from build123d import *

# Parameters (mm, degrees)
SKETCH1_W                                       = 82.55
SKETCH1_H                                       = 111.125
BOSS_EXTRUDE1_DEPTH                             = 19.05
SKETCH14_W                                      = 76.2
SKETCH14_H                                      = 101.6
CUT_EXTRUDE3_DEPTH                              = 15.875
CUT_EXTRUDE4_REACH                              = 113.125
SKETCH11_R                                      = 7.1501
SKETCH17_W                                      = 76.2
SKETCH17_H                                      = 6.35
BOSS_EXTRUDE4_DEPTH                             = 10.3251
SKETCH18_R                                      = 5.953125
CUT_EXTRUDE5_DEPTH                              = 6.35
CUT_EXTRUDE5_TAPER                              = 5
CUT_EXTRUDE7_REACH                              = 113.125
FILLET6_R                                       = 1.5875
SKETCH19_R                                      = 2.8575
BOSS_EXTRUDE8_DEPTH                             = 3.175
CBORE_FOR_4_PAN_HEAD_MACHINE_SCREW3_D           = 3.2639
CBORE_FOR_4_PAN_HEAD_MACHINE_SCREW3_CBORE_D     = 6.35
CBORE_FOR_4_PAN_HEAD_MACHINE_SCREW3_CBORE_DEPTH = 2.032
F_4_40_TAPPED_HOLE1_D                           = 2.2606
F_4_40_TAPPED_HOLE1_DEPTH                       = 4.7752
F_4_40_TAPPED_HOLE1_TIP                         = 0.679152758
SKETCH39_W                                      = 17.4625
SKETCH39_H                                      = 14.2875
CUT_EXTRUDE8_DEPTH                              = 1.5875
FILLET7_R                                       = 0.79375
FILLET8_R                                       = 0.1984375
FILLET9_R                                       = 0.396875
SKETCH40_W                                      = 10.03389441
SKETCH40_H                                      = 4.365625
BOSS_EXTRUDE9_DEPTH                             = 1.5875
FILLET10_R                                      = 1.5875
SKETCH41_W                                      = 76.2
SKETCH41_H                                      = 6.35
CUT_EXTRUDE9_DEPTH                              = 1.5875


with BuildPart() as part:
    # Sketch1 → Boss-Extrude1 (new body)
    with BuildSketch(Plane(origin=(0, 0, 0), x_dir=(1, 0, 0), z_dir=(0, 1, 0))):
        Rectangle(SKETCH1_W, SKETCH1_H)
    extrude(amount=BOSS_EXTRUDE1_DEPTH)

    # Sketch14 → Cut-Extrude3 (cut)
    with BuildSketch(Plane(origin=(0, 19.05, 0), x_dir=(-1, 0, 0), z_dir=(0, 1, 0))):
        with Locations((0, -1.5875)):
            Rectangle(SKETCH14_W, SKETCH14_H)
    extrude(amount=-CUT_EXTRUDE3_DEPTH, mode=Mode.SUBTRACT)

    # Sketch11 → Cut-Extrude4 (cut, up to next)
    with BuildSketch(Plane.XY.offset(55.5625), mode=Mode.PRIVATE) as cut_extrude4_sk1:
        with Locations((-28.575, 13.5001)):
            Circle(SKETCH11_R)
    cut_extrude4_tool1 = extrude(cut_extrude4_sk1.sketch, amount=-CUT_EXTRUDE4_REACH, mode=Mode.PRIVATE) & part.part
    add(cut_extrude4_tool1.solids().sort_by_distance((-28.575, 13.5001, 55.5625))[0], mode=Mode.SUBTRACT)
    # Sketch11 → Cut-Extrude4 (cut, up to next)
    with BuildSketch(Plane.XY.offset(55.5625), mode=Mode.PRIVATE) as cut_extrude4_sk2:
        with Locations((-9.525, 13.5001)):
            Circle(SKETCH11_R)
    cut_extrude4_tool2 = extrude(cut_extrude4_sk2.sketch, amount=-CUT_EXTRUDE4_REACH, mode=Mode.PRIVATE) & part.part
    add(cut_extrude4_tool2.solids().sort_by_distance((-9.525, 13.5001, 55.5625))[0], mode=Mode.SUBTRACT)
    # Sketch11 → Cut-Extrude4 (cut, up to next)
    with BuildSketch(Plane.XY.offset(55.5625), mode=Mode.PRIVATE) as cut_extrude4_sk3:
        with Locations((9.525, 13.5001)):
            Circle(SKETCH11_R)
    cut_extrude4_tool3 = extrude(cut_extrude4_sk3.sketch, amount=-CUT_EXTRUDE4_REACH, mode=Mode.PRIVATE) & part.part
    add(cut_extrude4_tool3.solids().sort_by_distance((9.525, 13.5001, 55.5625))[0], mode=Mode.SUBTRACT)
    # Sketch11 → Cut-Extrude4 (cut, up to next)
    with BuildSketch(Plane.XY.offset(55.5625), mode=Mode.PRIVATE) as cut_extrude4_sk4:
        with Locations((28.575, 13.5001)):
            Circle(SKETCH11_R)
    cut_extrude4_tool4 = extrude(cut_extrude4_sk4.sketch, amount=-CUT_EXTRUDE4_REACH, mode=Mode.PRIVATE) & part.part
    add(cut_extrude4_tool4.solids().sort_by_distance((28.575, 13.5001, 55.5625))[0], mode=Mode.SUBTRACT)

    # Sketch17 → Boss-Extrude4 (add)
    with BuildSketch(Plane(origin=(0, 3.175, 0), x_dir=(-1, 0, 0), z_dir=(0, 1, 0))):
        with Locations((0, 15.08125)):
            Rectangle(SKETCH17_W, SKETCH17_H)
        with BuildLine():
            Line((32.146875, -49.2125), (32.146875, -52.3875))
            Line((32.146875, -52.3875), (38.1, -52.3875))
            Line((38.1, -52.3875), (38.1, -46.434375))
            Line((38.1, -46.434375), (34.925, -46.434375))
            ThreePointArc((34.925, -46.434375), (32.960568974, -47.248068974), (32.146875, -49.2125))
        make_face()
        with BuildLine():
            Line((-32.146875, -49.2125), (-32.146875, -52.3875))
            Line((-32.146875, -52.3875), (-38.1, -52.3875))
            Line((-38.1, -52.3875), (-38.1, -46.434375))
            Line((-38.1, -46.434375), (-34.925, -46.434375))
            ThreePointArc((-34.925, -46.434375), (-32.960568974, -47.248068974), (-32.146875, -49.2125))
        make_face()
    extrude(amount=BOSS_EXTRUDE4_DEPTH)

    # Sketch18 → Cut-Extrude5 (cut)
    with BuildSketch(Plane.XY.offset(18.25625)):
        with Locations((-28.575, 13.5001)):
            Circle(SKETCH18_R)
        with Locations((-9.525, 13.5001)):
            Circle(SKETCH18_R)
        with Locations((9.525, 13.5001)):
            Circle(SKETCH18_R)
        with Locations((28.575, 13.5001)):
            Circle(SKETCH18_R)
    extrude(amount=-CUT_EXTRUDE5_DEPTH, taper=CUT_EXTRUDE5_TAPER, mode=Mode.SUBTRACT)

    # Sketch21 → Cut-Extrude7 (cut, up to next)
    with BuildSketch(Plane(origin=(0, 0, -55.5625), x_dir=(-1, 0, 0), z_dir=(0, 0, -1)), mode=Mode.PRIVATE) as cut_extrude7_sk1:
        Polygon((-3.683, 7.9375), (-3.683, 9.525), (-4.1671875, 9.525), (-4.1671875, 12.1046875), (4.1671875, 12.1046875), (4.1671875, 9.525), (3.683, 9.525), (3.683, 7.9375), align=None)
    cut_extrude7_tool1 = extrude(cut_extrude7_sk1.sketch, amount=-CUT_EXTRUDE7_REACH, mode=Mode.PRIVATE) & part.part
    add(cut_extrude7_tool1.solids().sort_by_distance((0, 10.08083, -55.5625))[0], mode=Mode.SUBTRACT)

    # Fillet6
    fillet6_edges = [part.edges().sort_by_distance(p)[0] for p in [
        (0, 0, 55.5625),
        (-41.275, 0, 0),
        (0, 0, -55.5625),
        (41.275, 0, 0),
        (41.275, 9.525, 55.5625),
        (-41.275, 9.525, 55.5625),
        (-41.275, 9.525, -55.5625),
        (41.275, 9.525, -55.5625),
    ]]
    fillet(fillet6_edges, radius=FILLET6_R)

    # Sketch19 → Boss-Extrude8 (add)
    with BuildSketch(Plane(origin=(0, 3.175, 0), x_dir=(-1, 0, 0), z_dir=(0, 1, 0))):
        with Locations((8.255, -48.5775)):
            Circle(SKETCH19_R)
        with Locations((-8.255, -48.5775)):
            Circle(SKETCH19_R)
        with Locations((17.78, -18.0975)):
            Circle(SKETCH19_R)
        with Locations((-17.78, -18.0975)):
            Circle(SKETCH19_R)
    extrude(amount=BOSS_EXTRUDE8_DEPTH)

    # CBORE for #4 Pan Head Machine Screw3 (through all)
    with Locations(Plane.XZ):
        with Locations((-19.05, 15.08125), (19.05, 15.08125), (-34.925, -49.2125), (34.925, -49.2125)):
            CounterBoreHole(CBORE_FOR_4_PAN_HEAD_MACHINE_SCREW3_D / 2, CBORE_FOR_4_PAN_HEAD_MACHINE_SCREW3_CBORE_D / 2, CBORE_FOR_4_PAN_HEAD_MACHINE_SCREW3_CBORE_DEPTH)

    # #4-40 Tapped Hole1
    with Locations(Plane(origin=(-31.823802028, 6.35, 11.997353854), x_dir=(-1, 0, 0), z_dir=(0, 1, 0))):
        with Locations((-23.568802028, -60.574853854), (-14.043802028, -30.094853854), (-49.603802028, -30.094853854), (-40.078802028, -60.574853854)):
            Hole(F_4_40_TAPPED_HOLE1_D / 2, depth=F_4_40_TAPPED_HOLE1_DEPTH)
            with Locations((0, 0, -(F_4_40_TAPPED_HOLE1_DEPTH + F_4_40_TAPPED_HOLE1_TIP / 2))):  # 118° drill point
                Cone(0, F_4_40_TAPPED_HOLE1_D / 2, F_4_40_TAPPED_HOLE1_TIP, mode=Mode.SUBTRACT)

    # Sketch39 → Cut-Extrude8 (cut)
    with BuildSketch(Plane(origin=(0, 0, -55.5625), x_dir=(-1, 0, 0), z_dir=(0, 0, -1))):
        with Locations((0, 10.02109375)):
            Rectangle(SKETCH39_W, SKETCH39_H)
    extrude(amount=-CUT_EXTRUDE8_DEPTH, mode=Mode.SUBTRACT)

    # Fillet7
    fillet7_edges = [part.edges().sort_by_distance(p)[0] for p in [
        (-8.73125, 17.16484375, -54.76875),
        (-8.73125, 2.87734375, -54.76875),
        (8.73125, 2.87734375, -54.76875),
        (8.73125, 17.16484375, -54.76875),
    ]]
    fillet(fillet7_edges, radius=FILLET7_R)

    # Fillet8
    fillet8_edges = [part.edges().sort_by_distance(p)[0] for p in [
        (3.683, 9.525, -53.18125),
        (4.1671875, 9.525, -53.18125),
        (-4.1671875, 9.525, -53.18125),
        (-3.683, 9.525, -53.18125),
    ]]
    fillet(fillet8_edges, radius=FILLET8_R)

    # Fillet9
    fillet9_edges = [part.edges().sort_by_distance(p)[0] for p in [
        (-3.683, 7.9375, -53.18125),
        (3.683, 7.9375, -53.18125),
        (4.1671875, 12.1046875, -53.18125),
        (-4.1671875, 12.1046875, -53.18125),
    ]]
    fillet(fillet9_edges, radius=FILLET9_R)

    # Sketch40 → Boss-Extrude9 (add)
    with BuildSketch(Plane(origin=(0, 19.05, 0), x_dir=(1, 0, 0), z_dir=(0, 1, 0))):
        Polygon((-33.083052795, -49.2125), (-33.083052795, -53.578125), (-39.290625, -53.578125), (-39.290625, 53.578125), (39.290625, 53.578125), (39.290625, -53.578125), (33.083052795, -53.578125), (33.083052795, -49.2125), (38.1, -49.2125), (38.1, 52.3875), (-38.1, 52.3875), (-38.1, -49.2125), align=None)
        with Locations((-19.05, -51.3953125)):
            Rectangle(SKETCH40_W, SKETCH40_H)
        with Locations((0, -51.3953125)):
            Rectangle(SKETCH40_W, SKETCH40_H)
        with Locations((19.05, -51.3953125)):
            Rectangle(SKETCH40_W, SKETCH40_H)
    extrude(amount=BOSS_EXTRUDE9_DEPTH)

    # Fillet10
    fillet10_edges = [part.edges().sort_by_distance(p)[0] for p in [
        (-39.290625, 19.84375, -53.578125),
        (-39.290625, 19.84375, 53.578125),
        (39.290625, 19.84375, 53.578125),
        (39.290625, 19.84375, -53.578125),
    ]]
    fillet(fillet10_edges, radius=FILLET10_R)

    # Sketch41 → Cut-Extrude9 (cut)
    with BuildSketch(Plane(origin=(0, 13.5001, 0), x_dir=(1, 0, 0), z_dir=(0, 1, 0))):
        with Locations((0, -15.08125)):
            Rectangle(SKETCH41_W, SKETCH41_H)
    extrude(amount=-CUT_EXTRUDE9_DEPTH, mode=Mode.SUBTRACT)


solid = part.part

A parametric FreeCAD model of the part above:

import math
import FreeCAD as App
import Part
import Sketcher
from FreeCAD import Vector
Q = App.Units.Quantity


def edges_at(feature, points):
    """Names of the edges that pass closest to the given points."""
    edges = feature.Shape.Edges
    near = lambda p: min(range(len(edges)), key=lambda i: edges[i].distToShape(Part.Vertex(*p))[0])
    return sorted({f"Edge{near(p) + 1}" for p in points})


def add_polygon(sketch, points):
    """Adds a closed chain of lines whose ends are joined by coincident constraints."""
    first, n = sketch.GeometryCount, len(points)
    for a, b in zip(points, points[1:] + points[:1]):
        sketch.addGeometry(Part.LineSegment(App.Vector(*a, 0), App.Vector(*b, 0)), False)
    for i in range(n):
        sketch.addConstraint(Sketcher.Constraint("Coincident", first + i, 2, first + (i + 1) % n, 1))

doc = App.newDocument("Part")
params = doc.addObject("Spreadsheet::Sheet", "Params")
for row, (alias, value) in enumerate([
    ("sketch1_width", "3.25 in"),
    ("sketch1_height", "4.375 in"),
    ("pad1_length", "0.75 in"),
    ("sketch2_width", "3 in"),
    ("sketch2_height", "4 in"),
    ("pocket1_length", "0.625 in"),
    ("sketch3_diameter", "0.563 in"),
    ("sketch4_diameter", "0.563 in"),
    ("sketch5_diameter", "0.563 in"),
    ("sketch6_diameter", "0.563 in"),
    ("sketch7_width", "3 in"),
    ("sketch7_radius", "0.109375 in"),
    ("sketch7_height", "0.25 in"),
    ("sketch7_width2", "0.234375 in"),
    ("pad2_length", "0.4065 in"),
    ("sketch8_diameter", "0.46875 in"),
    ("pocket6_length", "0.25 in"),
    ("pocket6_taper", "-5 deg"),
    ("sketch9_width", "0.29 in"),
    ("sketch9_width2", "0.328125 in"),
    ("sketch9_height", "0.0625 in"),
    ("fillet_radius", "0.0625 in"),
    ("sketch10_diameter", "0.225 in"),
    ("pad3_length", "0.125 in"),
    ("hole_diameter", "0.1285 in"),
    ("hole_cbore_diameter", "0.25 in"),
    ("hole_cbore_depth", "0.08 in"),
    ("sketch12_diameter", "0.089 in"),
    ("hole2_diameter", "0.089 in"),
    ("hole2_depth", "0.188 in"),
    ("sketch13_width", "0.6875 in"),
    ("sketch13_height", "0.5625 in"),
    ("pocket8_length", "0.0625 in"),
    ("fillet2_radius", "0.03125 in"),
    ("fillet3_radius", "0.198437 mm"),
    ("fillet4_radius", "0.015625 in"),
    ("sketch14_width", "3 in"),
    ("sketch14_height", "4 in"),
    ("sketch14_width2", "3.09375 in"),
    ("sketch14_height2", "0.171875 in"),
    ("sketch14_height3", "4.21875 in"),
    ("pad4_length", "0.0625 in"),
    ("fillet5_radius", "0.0625 in"),
    ("sketch15_width", "3 in"),
    ("sketch15_height", "0.25 in"),
    ("pocket9_length", "0.0625 in"),
], start=1):
    params.set(f"A{row}", alias)
    params.set(f"B{row}", "=" + value)
    params.setAlias(f"B{row}", alias)

body = doc.addObject("PartDesign::Body", "Body")

sketch1 = body.newObject("Sketcher::SketchObject", "Sketch")
sketch1.AttachmentSupport = (doc.getObject("XZ_Plane"), [""])
sketch1.MapMode = "FlatFace"
add_polygon(sketch1, [(-41.275, -55.5625), (-41.275, 55.5625), (41.275, 55.5625), (41.275, -55.5625)])
sketch1.addConstraint(Sketcher.Constraint("Vertical", 0))
sketch1.addConstraint(Sketcher.Constraint("Horizontal", 1))
sketch1.addConstraint(Sketcher.Constraint("Vertical", 2))
sketch1.addConstraint(Sketcher.Constraint("Horizontal", 3))
sketch1.addConstraint(Sketcher.Constraint("Symmetric", 0, 2, 2, 2, -1, 1))
sketch1.addConstraint(Sketcher.Constraint("DistanceX", 1, 1, 1, 2, Q("3.25 in")))
sketch1.addConstraint(Sketcher.Constraint("DistanceY", 0, 1, 0, 2, Q("4.375 in")))
sketch1.setExpression("Constraints[9]", "Params.sketch1_width")
sketch1.setExpression("Constraints[10]", "Params.sketch1_height")
pad1 = body.newObject("PartDesign::Pad", "Pad")
pad1.Profile = sketch1
pad1.setExpression("Length", "Params.pad1_length")
pad1.Reversed = True

sketch2 = body.newObject("Sketcher::SketchObject", "Sketch001")
sketch2.AttachmentSupport = (doc.getObject("XZ_Plane"), [""])
sketch2.MapMode = "FlatFace"
sketch2.AttachmentOffset = App.Placement(Vector(0, 0, -0.75 * 25.4), App.Rotation())
add_polygon(sketch2, [(38.1, 49.2125), (38.1, -52.3875), (-38.1, -52.3875), (-38.1, 49.2125)])
sketch2.addConstraint(Sketcher.Constraint("Vertical", 0))
sketch2.addConstraint(Sketcher.Constraint("Horizontal", 1))
sketch2.addConstraint(Sketcher.Constraint("Vertical", 2))
sketch2.addConstraint(Sketcher.Constraint("Horizontal", 3))
sketch2.addConstraint(Sketcher.Constraint("DistanceX", 1, 2, 1, 1, Q("3 in")))
sketch2.addConstraint(Sketcher.Constraint("DistanceY", 0, 2, 0, 1, Q("4 in")))
sketch2.addConstraint(Sketcher.Constraint("DistanceX", -1, 1, 0, 2, Q("1.5 in")))
sketch2.addConstraint(Sketcher.Constraint("DistanceY", 0, 2, -1, 1, Q("2.0625 in")))
sketch2.setExpression("Constraints[8]", "Params.sketch2_width")
sketch2.setExpression("Constraints[9]", "Params.sketch2_height")
pocket1 = body.newObject("PartDesign::Pocket", "Pocket")
pocket1.Profile = sketch2
pocket1.setExpression("Length", "Params.pocket1_length")
pocket1.Reversed = True

sketch3 = body.newObject("Sketcher::SketchObject", "Sketch002")
sketch3.AttachmentSupport = (doc.getObject("XY_Plane"), [""])
sketch3.MapMode = "FlatFace"
sketch3.AttachmentOffset = App.Placement(Vector(0, 0, 2.1875 * 25.4), App.Rotation())
sketch3.addGeometry(Part.Circle(Vector(-28.575, 13.5001, 0), Vector(0, 0, 1), 7.1501), False)
sketch3.addConstraint(Sketcher.Constraint("Diameter", 0, Q("0.563 in")))
sketch3.addConstraint(Sketcher.Constraint("DistanceX", 0, 3, -1, 1, Q("1.125 in")))
sketch3.addConstraint(Sketcher.Constraint("DistanceY", -1, 1, 0, 3, Q("0.5315 in")))
sketch3.setExpression("Constraints[0]", "Params.sketch3_diameter")
pocket2 = body.newObject("PartDesign::Pocket", "Pocket001")
pocket2.Profile = sketch3
pocket2.Type = "UpToFirst"

sketch4 = body.newObject("Sketcher::SketchObject", "Sketch003")
sketch4.AttachmentSupport = (doc.getObject("XY_Plane"), [""])
sketch4.MapMode = "FlatFace"
sketch4.AttachmentOffset = App.Placement(Vector(0, 0, 2.1875 * 25.4), App.Rotation())
sketch4.addGeometry(Part.Circle(Vector(-9.525, 13.5001, 0), Vector(0, 0, 1), 7.1501), False)
sketch4.addConstraint(Sketcher.Constraint("Diameter", 0, Q("0.563 in")))
sketch4.addConstraint(Sketcher.Constraint("DistanceX", 0, 3, -1, 1, Q("0.375 in")))
sketch4.addConstraint(Sketcher.Constraint("DistanceY", -1, 1, 0, 3, Q("0.5315 in")))
sketch4.setExpression("Constraints[0]", "Params.sketch4_diameter")
pocket3 = body.newObject("PartDesign::Pocket", "Pocket002")
pocket3.Profile = sketch4
pocket3.Type = "UpToFirst"

sketch5 = body.newObject("Sketcher::SketchObject", "Sketch004")
sketch5.AttachmentSupport = (doc.getObject("XY_Plane"), [""])
sketch5.MapMode = "FlatFace"
sketch5.AttachmentOffset = App.Placement(Vector(0, 0, 2.1875 * 25.4), App.Rotation())
sketch5.addGeometry(Part.Circle(Vector(9.525, 13.5001, 0), Vector(0, 0, 1), 7.1501), False)
sketch5.addConstraint(Sketcher.Constraint("Diameter", 0, Q("0.563 in")))
sketch5.addConstraint(Sketcher.Constraint("DistanceX", -1, 1, 0, 3, Q("0.375 in")))
sketch5.addConstraint(Sketcher.Constraint("DistanceY", -1, 1, 0, 3, Q("0.5315 in")))
sketch5.setExpression("Constraints[0]", "Params.sketch5_diameter")
pocket4 = body.newObject("PartDesign::Pocket", "Pocket003")
pocket4.Profile = sketch5
pocket4.Type = "UpToFirst"

sketch6 = body.newObject("Sketcher::SketchObject", "Sketch005")
sketch6.AttachmentSupport = (doc.getObject("XY_Plane"), [""])
sketch6.MapMode = "FlatFace"
sketch6.AttachmentOffset = App.Placement(Vector(0, 0, 2.1875 * 25.4), App.Rotation())
sketch6.addGeometry(Part.Circle(Vector(28.575, 13.5001, 0), Vector(0, 0, 1), 7.1501), False)
sketch6.addConstraint(Sketcher.Constraint("Diameter", 0, Q("0.563 in")))
sketch6.addConstraint(Sketcher.Constraint("DistanceX", -1, 1, 0, 3, Q("1.125 in")))
sketch6.addConstraint(Sketcher.Constraint("DistanceY", -1, 1, 0, 3, Q("0.5315 in")))
sketch6.setExpression("Constraints[0]", "Params.sketch6_diameter")
pocket5 = body.newObject("PartDesign::Pocket", "Pocket004")
pocket5.Profile = sketch6
pocket5.Type = "UpToFirst"

sketch7 = body.newObject("Sketcher::SketchObject", "Sketch006")
sketch7.AttachmentSupport = (doc.getObject("XZ_Plane"), [""])
sketch7.MapMode = "FlatFace"
sketch7.AttachmentOffset = App.Placement(Vector(0, 0, -0.125 * 25.4), App.Rotation())
add_polygon(sketch7, [(38.1, 18.25625), (38.1, 11.90625), (-38.1, 11.90625), (-38.1, 18.25625)])
sketch7.addGeometry(Part.LineSegment(Vector(-32.146875, -49.2125, 0), Vector(-32.146875, -52.3875, 0)), False)
sketch7.addGeometry(Part.LineSegment(Vector(-32.146875, -52.3875, 0), Vector(-38.1, -52.3875, 0)), False)
sketch7.addGeometry(Part.LineSegment(Vector(-38.1, -52.3875, 0), Vector(-38.1, -46.434375, 0)), False)
sketch7.addGeometry(Part.LineSegment(Vector(-38.1, -46.434375, 0), Vector(-34.925, -46.434375, 0)), False)
sketch7.addGeometry(Part.ArcOfCircle(Part.Circle(Vector(-34.925, -49.2125, 0), Vector(0, 0, 1), 2.778125), math.radians(0), math.radians(90)), False)
sketch7.addGeometry(Part.LineSegment(Vector(32.146875, -52.3875, 0), Vector(32.146875, -49.2125, 0)), False)
sketch7.addGeometry(Part.ArcOfCircle(Part.Circle(Vector(34.925, -49.2125, 0), Vector(0, 0, 1), 2.778125), math.radians(90), math.radians(180)), False)
sketch7.addGeometry(Part.LineSegment(Vector(34.925, -46.434375, 0), Vector(38.1, -46.434375, 0)), False)
sketch7.addGeometry(Part.LineSegment(Vector(38.1, -46.434375, 0), Vector(38.1, -52.3875, 0)), False)
sketch7.addGeometry(Part.LineSegment(Vector(38.1, -52.3875, 0), Vector(32.146875, -52.3875, 0)), False)
sketch7.addConstraint(Sketcher.Constraint("Coincident", 4, 2, 5, 1))
sketch7.addConstraint(Sketcher.Constraint("Coincident", 5, 2, 6, 1))
sketch7.addConstraint(Sketcher.Constraint("Coincident", 6, 2, 7, 1))
sketch7.addConstraint(Sketcher.Constraint("Tangent", 7, 2, 8, 2))
sketch7.addConstraint(Sketcher.Constraint("Tangent", 8, 1, 4, 1))
sketch7.addConstraint(Sketcher.Constraint("Tangent", 9, 2, 10, 2))
sketch7.addConstraint(Sketcher.Constraint("Tangent", 10, 1, 11, 1))
sketch7.addConstraint(Sketcher.Constraint("Coincident", 11, 2, 12, 1))
sketch7.addConstraint(Sketcher.Constraint("Coincident", 12, 2, 13, 1))
sketch7.addConstraint(Sketcher.Constraint("Coincident", 13, 2, 9, 1))
sketch7.addConstraint(Sketcher.Constraint("Vertical", 0))
sketch7.addConstraint(Sketcher.Constraint("Horizontal", 1))
sketch7.addConstraint(Sketcher.Constraint("Vertical", 2))
sketch7.addConstraint(Sketcher.Constraint("Horizontal", 3))
sketch7.addConstraint(Sketcher.Constraint("Vertical", 4))
sketch7.addConstraint(Sketcher.Constraint("Horizontal", 5))
sketch7.addConstraint(Sketcher.Constraint("Vertical", 6))
sketch7.addConstraint(Sketcher.Constraint("Horizontal", 7))
sketch7.addConstraint(Sketcher.Constraint("Vertical", 9))
sketch7.addConstraint(Sketcher.Constraint("Horizontal", 11))
sketch7.addConstraint(Sketcher.Constraint("Vertical", 12))
sketch7.addConstraint(Sketcher.Constraint("Horizontal", 13))
sketch7.addConstraint(Sketcher.Constraint("Equal", 8, 10))
sketch7.addConstraint(Sketcher.Constraint("Symmetric", 8, 3, 10, 3, -2))
sketch7.addConstraint(Sketcher.Constraint("Symmetric", 5, 2, 12, 2, -2))
sketch7.addConstraint(Sketcher.Constraint("Vertical", 2, 2, 5, 2))
sketch7.addConstraint(Sketcher.Constraint("Vertical", 3, 2, 11, 2))
sketch7.addConstraint(Sketcher.Constraint("Equal", 11, 4))
sketch7.addConstraint(Sketcher.Constraint("DistanceX", 1, 2, 1, 1, Q("3 in")))
sketch7.addConstraint(Sketcher.Constraint("Radius", 8, Q("0.109375 in")))
sketch7.addConstraint(Sketcher.Constraint("DistanceY", 0, 2, 0, 1, Q("0.25 in")))
sketch7.addConstraint(Sketcher.Constraint("DistanceX", 5, 2, 5, 1, Q("0.234375 in")))
sketch7.addConstraint(Sketcher.Constraint("DistanceY", 8, 3, -1, 1, Q("1.9375 in")))
sketch7.addConstraint(Sketcher.Constraint("DistanceY", -1, 1, 0, 2, Q("0.46875 in")))
sketch7.setExpression("Constraints[32]", "Params.sketch7_width")
sketch7.setExpression("Constraints[33]", "Params.sketch7_radius")
sketch7.setExpression("Constraints[34]", "Params.sketch7_height")
sketch7.setExpression("Constraints[35]", "Params.sketch7_width2")
pad2 = body.newObject("PartDesign::Pad", "Pad001")
pad2.Profile = sketch7
pad2.setExpression("Length", "Params.pad2_length")
pad2.Reversed = True

sketch8 = body.newObject("Sketcher::SketchObject", "Sketch007")
sketch8.AttachmentSupport = (doc.getObject("XY_Plane"), [""])
sketch8.MapMode = "FlatFace"
sketch8.AttachmentOffset = App.Placement(Vector(0, 0, 0.71875 * 25.4), App.Rotation())
sketch8.addGeometry(Part.Circle(Vector(-28.575, 13.5001, 0), Vector(0, 0, 1), 5.953125), False)
sketch8.addGeometry(Part.Circle(Vector(-9.525, 13.5001, 0), Vector(0, 0, 1), 5.953125), False)
sketch8.addGeometry(Part.Circle(Vector(9.525, 13.5001, 0), Vector(0, 0, 1), 5.953125), False)
sketch8.addGeometry(Part.Circle(Vector(28.575, 13.5001, 0), Vector(0, 0, 1), 5.953125), False)
sketch8.addConstraint(Sketcher.Constraint("Equal", 0, 1))
sketch8.addConstraint(Sketcher.Constraint("Equal", 1, 2))
sketch8.addConstraint(Sketcher.Constraint("Equal", 2, 3))
sketch8.addConstraint(Sketcher.Constraint("Symmetric", 1, 3, 2, 3, -2))
sketch8.addConstraint(Sketcher.Constraint("Symmetric", 0, 3, 3, 3, -2))
sketch8.addConstraint(Sketcher.Constraint("Horizontal", 0, 3, 1, 3))
sketch8.addConstraint(Sketcher.Constraint("Diameter", 0, Q("0.46875 in")))
sketch8.addConstraint(Sketcher.Constraint("DistanceX", 0, 3, 2, 3, Q("1.5 in")))
sketch8.addConstraint(Sketcher.Constraint("DistanceX", 0, 3, 1, 3, Q("0.75 in")))
sketch8.addConstraint(Sketcher.Constraint("DistanceY", -1, 1, 0, 3, Q("0.5315 in")))
sketch8.setExpression("Constraints[6]", "Params.sketch8_diameter")
pocket6 = body.newObject("PartDesign::Pocket", "Pocket005")
pocket6.Profile = sketch8
pocket6.setExpression("Length", "Params.pocket6_length")
pocket6.setExpression("TaperAngle", "Params.pocket6_taper")

sketch9 = body.newObject("Sketcher::SketchObject", "Sketch008")
sketch9.AttachmentSupport = (doc.getObject("XY_Plane"), [""])
sketch9.MapMode = "FlatFace"
sketch9.AttachmentOffset = App.Placement(Vector(0, 0, -2.1875 * 25.4), App.Rotation())
add_polygon(sketch9, [(3.683, 9.525), (3.683, 7.9375), (-3.683, 7.9375), (-3.683, 9.525), (-4.167187, 9.525), (-4.167187, 12.104688), (4.167187, 12.104688), (4.167187, 9.525)])
sketch9.addConstraint(Sketcher.Constraint("Vertical", 0))
sketch9.addConstraint(Sketcher.Constraint("Horizontal", 1))
sketch9.addConstraint(Sketcher.Constraint("Vertical", 2))
sketch9.addConstraint(Sketcher.Constraint("Horizontal", 3))
sketch9.addConstraint(Sketcher.Constraint("Vertical", 4))
sketch9.addConstraint(Sketcher.Constraint("Horizontal", 5))
sketch9.addConstraint(Sketcher.Constraint("Vertical", 6))
sketch9.addConstraint(Sketcher.Constraint("Horizontal", 7))
sketch9.addConstraint(Sketcher.Constraint("Symmetric", 3, 2, 6, 2, -2))
sketch9.addConstraint(Sketcher.Constraint("Equal", 3, 7))
sketch9.addConstraint(Sketcher.Constraint("DistanceX", 1, 2, 1, 1, Q("0.29 in")))
sketch9.addConstraint(Sketcher.Constraint("DistanceX", 5, 1, 5, 2, Q("0.328125 in")))
sketch9.addConstraint(Sketcher.Constraint("DistanceY", 0, 2, 0, 1, Q("0.0625 in")))
sketch9.addConstraint(Sketcher.Constraint("DistanceY", -1, 1, 0, 2, Q("0.3125 in")))
sketch9.addConstraint(Sketcher.Constraint("DistanceY", 4, 1, 4, 2, Q("2.579688 mm")))
sketch9.setExpression("Constraints[18]", "Params.sketch9_width")
sketch9.setExpression("Constraints[19]", "Params.sketch9_width2")
sketch9.setExpression("Constraints[20]", "Params.sketch9_height")
pocket7 = body.newObject("PartDesign::Pocket", "Pocket006")
pocket7.Profile = sketch9
pocket7.Type = "UpToFirst"
pocket7.Reversed = True
doc.recompute()

fillet = body.newObject("PartDesign::Fillet", "Fillet")
fillet.Base = (pocket7, edges_at(pocket7, [
    (0, 0, 55.562),
    (-41.275, 0, 0),
    (0, 0, -55.562),
    (41.275, 0, 0),
    (41.275, 9.525, 55.562),
    (-41.275, 9.525, 55.562),
    (-41.275, 9.525, -55.562),
    (41.275, 9.525, -55.562),
]))
fillet.setExpression("Radius", "Params.fillet_radius")

sketch10 = body.newObject("Sketcher::SketchObject", "Sketch009")
sketch10.AttachmentSupport = (doc.getObject("XZ_Plane"), [""])
sketch10.MapMode = "FlatFace"
sketch10.AttachmentOffset = App.Placement(Vector(0, 0, -0.125 * 25.4), App.Rotation())
sketch10.addGeometry(Part.Circle(Vector(-8.255, -48.5775, 0), Vector(0, 0, 1), 2.8575), False)
sketch10.addGeometry(Part.Circle(Vector(8.255, -48.5775, 0), Vector(0, 0, 1), 2.8575), False)
sketch10.addGeometry(Part.Circle(Vector(-17.78, -18.0975, 0), Vector(0, 0, 1), 2.8575), False)
sketch10.addGeometry(Part.Circle(Vector(17.78, -18.0975, 0), Vector(0, 0, 1), 2.8575), False)
sketch10.addConstraint(Sketcher.Constraint("Equal", 0, 1))
sketch10.addConstraint(Sketcher.Constraint("Equal", 1, 2))
sketch10.addConstraint(Sketcher.Constraint("Equal", 2, 3))
sketch10.addConstraint(Sketcher.Constraint("Symmetric", 0, 3, 1, 3, -2))
sketch10.addConstraint(Sketcher.Constraint("Symmetric", 2, 3, 3, 3, -2))
sketch10.addConstraint(Sketcher.Constraint("Diameter", 0, Q("0.225 in")))
sketch10.addConstraint(Sketcher.Constraint("DistanceX", 2, 3, -1, 1, Q("0.7 in")))
sketch10.addConstraint(Sketcher.Constraint("DistanceY", 0, 3, 2, 3, Q("1.2 in")))
sketch10.addConstraint(Sketcher.Constraint("DistanceX", 0, 3, 1, 3, Q("0.65 in")))
sketch10.addConstraint(Sketcher.Constraint("DistanceY", 0, 3, -1, 1, Q("1.9125 in")))
sketch10.setExpression("Constraints[5]", "Params.sketch10_diameter")
pad3 = body.newObject("PartDesign::Pad", "Pad002")
pad3.Profile = sketch10
pad3.setExpression("Length", "Params.pad3_length")
pad3.Reversed = True

sketch11 = body.newObject("Sketcher::SketchObject", "Sketch010")
sketch11.AttachmentSupport = (doc.getObject("XZ_Plane"), [""])
sketch11.MapMode = "FlatFace"
sketch11.addGeometry(Part.Circle(Vector(-19.05, 15.08125, 0), Vector(0, 0, 1), 1.63195), False)
sketch11.addGeometry(Part.Circle(Vector(19.05, 15.08125, 0), Vector(0, 0, 1), 1.63195), False)
sketch11.addGeometry(Part.Circle(Vector(-34.925, -49.2125, 0), Vector(0, 0, 1), 1.63195), False)
sketch11.addGeometry(Part.Circle(Vector(34.925, -49.2125, 0), Vector(0, 0, 1), 1.63195), False)
sketch11.addConstraint(Sketcher.Constraint("Equal", 0, 1))
sketch11.addConstraint(Sketcher.Constraint("Equal", 1, 2))
sketch11.addConstraint(Sketcher.Constraint("Equal", 2, 3))
sketch11.addConstraint(Sketcher.Constraint("Symmetric", 0, 3, 1, 3, -2))
sketch11.addConstraint(Sketcher.Constraint("Symmetric", 2, 3, 3, 3, -2))
sketch11.addConstraint(Sketcher.Constraint("Diameter", 0, Q("0.1285 in")))
sketch11.addConstraint(Sketcher.Constraint("DistanceX", 0, 3, 1, 3, Q("1.5 in")))
sketch11.addConstraint(Sketcher.Constraint("DistanceX", 2, 3, 3, 3, Q("2.75 in")))
sketch11.addConstraint(Sketcher.Constraint("DistanceY", -1, 1, 0, 3, Q("0.59375 in")))
sketch11.addConstraint(Sketcher.Constraint("DistanceY", 2, 3, -1, 1, Q("1.9375 in")))
doc.recompute()
hole = body.newObject("PartDesign::Hole", "Hole")
hole.Profile = sketch11
hole.ThreadType = "None"
hole.setExpression("Diameter", "Params.hole_diameter")
hole.DepthType = "ThroughAll"
hole.HoleCutType = "Counterbore"
hole.setExpression("HoleCutDiameter", "Params.hole_cbore_diameter")
hole.setExpression("HoleCutDepth", "Params.hole_cbore_depth")

sketch12 = body.newObject("Sketcher::SketchObject", "Sketch011")
sketch12.AttachmentSupport = (doc.getObject("XZ_Plane"), [""])
sketch12.MapMode = "FlatFace"
sketch12.AttachmentOffset = App.Placement(Vector(0, 0, -0.25 * 25.4), App.Rotation())
sketch12.addGeometry(Part.Circle(Vector(-8.255, -48.5775, 0), Vector(0, 0, 1), 1.1303), False)
sketch12.addGeometry(Part.Circle(Vector(-17.78, -18.0975, 0), Vector(0, 0, 1), 1.1303), False)
sketch12.addGeometry(Part.Circle(Vector(17.78, -18.0975, 0), Vector(0, 0, 1), 1.1303), False)
sketch12.addGeometry(Part.Circle(Vector(8.255, -48.5775, 0), Vector(0, 0, 1), 1.1303), False)
sketch12.addConstraint(Sketcher.Constraint("Equal", 0, 1))
sketch12.addConstraint(Sketcher.Constraint("Equal", 1, 2))
sketch12.addConstraint(Sketcher.Constraint("Equal", 2, 3))
sketch12.addConstraint(Sketcher.Constraint("Symmetric", 1, 3, 2, 3, -2))
sketch12.addConstraint(Sketcher.Constraint("Symmetric", 0, 3, 3, 3, -2))
sketch12.addConstraint(Sketcher.Constraint("Diameter", 0, Q("0.089 in")))
sketch12.addConstraint(Sketcher.Constraint("DistanceX", 1, 3, -1, 1, Q("0.7 in")))
sketch12.addConstraint(Sketcher.Constraint("DistanceY", 0, 3, 1, 3, Q("1.2 in")))
sketch12.addConstraint(Sketcher.Constraint("DistanceX", 0, 3, 3, 3, Q("0.65 in")))
sketch12.addConstraint(Sketcher.Constraint("DistanceY", 0, 3, -1, 1, Q("1.9125 in")))
sketch12.setExpression("Constraints[5]", "Params.sketch12_diameter")
doc.recompute()
hole2 = body.newObject("PartDesign::Hole", "Hole001")
hole2.Profile = sketch12
hole2.ThreadType = "None"
hole2.setExpression("Diameter", "Params.hole2_diameter")
hole2.DepthType = "Dimension"
hole2.setExpression("Depth", "Params.hole2_depth")
hole2.DrillPoint = "Angled"
hole2.DrillPointAngle = 118
hole2.Reversed = True

sketch13 = body.newObject("Sketcher::SketchObject", "Sketch012")
sketch13.AttachmentSupport = (doc.getObject("XY_Plane"), [""])
sketch13.MapMode = "FlatFace"
sketch13.AttachmentOffset = App.Placement(Vector(0, 0, -2.1875 * 25.4), App.Rotation())
add_polygon(sketch13, [(8.73125, 17.164844), (8.73125, 2.877344), (-8.73125, 2.877344), (-8.73125, 17.164844)])
sketch13.addConstraint(Sketcher.Constraint("Vertical", 0))
sketch13.addConstraint(Sketcher.Constraint("Horizontal", 1))
sketch13.addConstraint(Sketcher.Constraint("Vertical", 2))
sketch13.addConstraint(Sketcher.Constraint("Horizontal", 3))
sketch13.addConstraint(Sketcher.Constraint("DistanceX", 1, 2, 1, 1, Q("0.6875 in")))
sketch13.addConstraint(Sketcher.Constraint("DistanceY", 0, 2, 0, 1, Q("0.5625 in")))
sketch13.addConstraint(Sketcher.Constraint("DistanceX", -1, 1, 0, 2, Q("0.34375 in")))
sketch13.addConstraint(Sketcher.Constraint("DistanceY", -1, 1, 0, 2, Q("2.877344 mm")))
sketch13.setExpression("Constraints[8]", "Params.sketch13_width")
sketch13.setExpression("Constraints[9]", "Params.sketch13_height")
pocket8 = body.newObject("PartDesign::Pocket", "Pocket007")
pocket8.Profile = sketch13
pocket8.setExpression("Length", "Params.pocket8_length")
pocket8.Reversed = True
doc.recompute()

fillet2 = body.newObject("PartDesign::Fillet", "Fillet001")
fillet2.Base = (pocket8, edges_at(pocket8, [
    (-8.731, 17.165, -54.769),
    (-8.731, 2.877, -54.769),
    (8.731, 2.877, -54.769),
    (8.731, 17.165, -54.769),
]))
fillet2.setExpression("Radius", "Params.fillet2_radius")
doc.recompute()

fillet3 = body.newObject("PartDesign::Fillet", "Fillet002")
fillet3.Base = (fillet2, edges_at(fillet2, [
    (3.683, 9.525, -53.181),
    (4.167, 9.525, -53.181),
    (-4.167, 9.525, -53.181),
    (-3.683, 9.525, -53.181),
]))
fillet3.setExpression("Radius", "Params.fillet3_radius")
doc.recompute()

fillet4 = body.newObject("PartDesign::Fillet", "Fillet003")
fillet4.Base = (fillet3, edges_at(fillet3, [
    (-3.683, 7.938, -53.181),
    (3.683, 7.938, -53.181),
    (4.167, 12.105, -53.181),
    (-4.167, 12.105, -53.181),
]))
fillet4.setExpression("Radius", "Params.fillet4_radius")

sketch14 = body.newObject("Sketcher::SketchObject", "Sketch013")
sketch14.AttachmentSupport = (doc.getObject("XZ_Plane"), [""])
sketch14.MapMode = "FlatFace"
sketch14.AttachmentOffset = App.Placement(Vector(0, 0, -0.75 * 25.4), App.Rotation())
add_polygon(sketch14, [(-33.083053, 53.578125), (-33.083053, 49.2125), (-38.1, 49.2125), (-38.1, -52.3875), (38.1, -52.3875), (38.1, 49.2125), (33.083053, 49.2125), (33.083053, 53.578125), (39.290625, 53.578125), (39.290625, -53.578125), (-39.290625, -53.578125), (-39.290625, 53.578125)])
add_polygon(sketch14, [(-24.066947, 49.2125), (-24.066947, 53.578125), (-14.033053, 53.578125), (-14.033053, 49.2125)])
add_polygon(sketch14, [(-5.016947, 49.2125), (-5.016947, 53.578125), (5.016947, 53.578125), (5.016947, 49.2125)])
add_polygon(sketch14, [(14.033053, 49.2125), (14.033053, 53.578125), (24.066947, 53.578125), (24.066947, 49.2125)])
sketch14.addConstraint(Sketcher.Constraint("Vertical", 0))
sketch14.addConstraint(Sketcher.Constraint("Horizontal", 1))
sketch14.addConstraint(Sketcher.Constraint("Vertical", 2))
sketch14.addConstraint(Sketcher.Constraint("Horizontal", 3))
sketch14.addConstraint(Sketcher.Constraint("Vertical", 4))
sketch14.addConstraint(Sketcher.Constraint("Horizontal", 5))
sketch14.addConstraint(Sketcher.Constraint("Vertical", 6))
sketch14.addConstraint(Sketcher.Constraint("Horizontal", 7))
sketch14.addConstraint(Sketcher.Constraint("Vertical", 8))
sketch14.addConstraint(Sketcher.Constraint("Horizontal", 9))
sketch14.addConstraint(Sketcher.Constraint("Vertical", 10))
sketch14.addConstraint(Sketcher.Constraint("Horizontal", 11))
sketch14.addConstraint(Sketcher.Constraint("Vertical", 12))
sketch14.addConstraint(Sketcher.Constraint("Horizontal", 13))
sketch14.addConstraint(Sketcher.Constraint("Vertical", 14))
sketch14.addConstraint(Sketcher.Constraint("Horizontal", 15))
sketch14.addConstraint(Sketcher.Constraint("Vertical", 16))
sketch14.addConstraint(Sketcher.Constraint("Horizontal", 17))
sketch14.addConstraint(Sketcher.Constraint("Vertical", 18))
sketch14.addConstraint(Sketcher.Constraint("Horizontal", 19))
sketch14.addConstraint(Sketcher.Constraint("Vertical", 20))
sketch14.addConstraint(Sketcher.Constraint("Horizontal", 21))
sketch14.addConstraint(Sketcher.Constraint("Vertical", 22))
sketch14.addConstraint(Sketcher.Constraint("Horizontal", 23))
sketch14.addConstraint(Sketcher.Constraint("Symmetric", 7, 2, 9, 2, -1, 1))
sketch14.addConstraint(Sketcher.Constraint("Symmetric", 1, 2, 4, 2, -2))
sketch14.addConstraint(Sketcher.Constraint("Symmetric", 6, 2, 11, 2, -2))
sketch14.addConstraint(Sketcher.Constraint("Symmetric", 13, 2, 20, 2, -2))
sketch14.addConstraint(Sketcher.Constraint("Symmetric", 15, 2, 22, 2, -2))
sketch14.addConstraint(Sketcher.Constraint("Horizontal", 11, 2, 12, 2))
sketch14.addConstraint(Sketcher.Constraint("Horizontal", 5, 2, 14, 2))
sketch14.addConstraint(Sketcher.Constraint("Horizontal", 13, 2, 16, 2))
sketch14.addConstraint(Sketcher.Constraint("Horizontal", 15, 2, 18, 2))
sketch14.addConstraint(Sketcher.Constraint("Equal", 15, 17))
sketch14.addConstraint(Sketcher.Constraint("DistanceX", 3, 1, 3, 2, Q("3 in")))
sketch14.addConstraint(Sketcher.Constraint("DistanceY", 2, 2, 2, 1, Q("4 in")))
sketch14.addConstraint(Sketcher.Constraint("DistanceX", 9, 2, 9, 1, Q("3.09375 in")))
sketch14.addConstraint(Sketcher.Constraint("DistanceY", 0, 2, 0, 1, Q("0.171875 in")))
sketch14.addConstraint(Sketcher.Constraint("DistanceY", 8, 2, 8, 1, Q("4.21875 in")))
sketch14.addConstraint(Sketcher.Constraint("DistanceX", 12, 2, 6, 2, Q("2.25 in")))
sketch14.addConstraint(Sketcher.Constraint("DistanceX", 11, 2, 13, 2, Q("0.75 in")))
sketch14.addConstraint(Sketcher.Constraint("DistanceX", 12, 2, 16, 2, Q("0.75 in")))
sketch14.addConstraint(Sketcher.Constraint("DistanceX", 1, 2, 1, 1, Q("5.016947 mm")))
sketch14.setExpression("Constraints[58]", "Params.sketch14_width")
sketch14.setExpression("Constraints[59]", "Params.sketch14_height")
sketch14.setExpression("Constraints[60]", "Params.sketch14_width2")
sketch14.setExpression("Constraints[61]", "Params.sketch14_height2")
sketch14.setExpression("Constraints[62]", "Params.sketch14_height3")
pad4 = body.newObject("PartDesign::Pad", "Pad003")
pad4.Profile = sketch14
pad4.setExpression("Length", "Params.pad4_length")
pad4.Reversed = True
doc.recompute()

fillet5 = body.newObject("PartDesign::Fillet", "Fillet004")
fillet5.Base = (pad4, edges_at(pad4, [
    (-39.291, 19.844, -53.578),
    (-39.291, 19.844, 53.578),
    (39.291, 19.844, 53.578),
    (39.291, 19.844, -53.578),
]))
fillet5.setExpression("Radius", "Params.fillet5_radius")

sketch15 = body.newObject("Sketcher::SketchObject", "Sketch014")
sketch15.AttachmentSupport = (doc.getObject("XZ_Plane"), [""])
sketch15.MapMode = "FlatFace"
sketch15.AttachmentOffset = App.Placement(Vector(0, 0, -0.5315 * 25.4), App.Rotation())
add_polygon(sketch15, [(-38.1, 11.90625), (-38.1, 18.25625), (38.1, 18.25625), (38.1, 11.90625)])
sketch15.addConstraint(Sketcher.Constraint("Vertical", 0))
sketch15.addConstraint(Sketcher.Constraint("Horizontal", 1))
sketch15.addConstraint(Sketcher.Constraint("Vertical", 2))
sketch15.addConstraint(Sketcher.Constraint("Horizontal", 3))
sketch15.addConstraint(Sketcher.Constraint("DistanceX", 1, 1, 1, 2, Q("3 in")))
sketch15.addConstraint(Sketcher.Constraint("DistanceY", 0, 1, 0, 2, Q("0.25 in")))
sketch15.addConstraint(Sketcher.Constraint("DistanceX", 0, 2, -1, 1, Q("1.5 in")))
sketch15.addConstraint(Sketcher.Constraint("DistanceY", -1, 1, 0, 2, Q("0.71875 in")))
sketch15.setExpression("Constraints[8]", "Params.sketch15_width")
sketch15.setExpression("Constraints[9]", "Params.sketch15_height")
pocket9 = body.newObject("PartDesign::Pocket", "Pocket008")
pocket9.Profile = sketch15
pocket9.setExpression("Length", "Params.pocket9_length")
pocket9.Reversed = True

doc.recompute()
